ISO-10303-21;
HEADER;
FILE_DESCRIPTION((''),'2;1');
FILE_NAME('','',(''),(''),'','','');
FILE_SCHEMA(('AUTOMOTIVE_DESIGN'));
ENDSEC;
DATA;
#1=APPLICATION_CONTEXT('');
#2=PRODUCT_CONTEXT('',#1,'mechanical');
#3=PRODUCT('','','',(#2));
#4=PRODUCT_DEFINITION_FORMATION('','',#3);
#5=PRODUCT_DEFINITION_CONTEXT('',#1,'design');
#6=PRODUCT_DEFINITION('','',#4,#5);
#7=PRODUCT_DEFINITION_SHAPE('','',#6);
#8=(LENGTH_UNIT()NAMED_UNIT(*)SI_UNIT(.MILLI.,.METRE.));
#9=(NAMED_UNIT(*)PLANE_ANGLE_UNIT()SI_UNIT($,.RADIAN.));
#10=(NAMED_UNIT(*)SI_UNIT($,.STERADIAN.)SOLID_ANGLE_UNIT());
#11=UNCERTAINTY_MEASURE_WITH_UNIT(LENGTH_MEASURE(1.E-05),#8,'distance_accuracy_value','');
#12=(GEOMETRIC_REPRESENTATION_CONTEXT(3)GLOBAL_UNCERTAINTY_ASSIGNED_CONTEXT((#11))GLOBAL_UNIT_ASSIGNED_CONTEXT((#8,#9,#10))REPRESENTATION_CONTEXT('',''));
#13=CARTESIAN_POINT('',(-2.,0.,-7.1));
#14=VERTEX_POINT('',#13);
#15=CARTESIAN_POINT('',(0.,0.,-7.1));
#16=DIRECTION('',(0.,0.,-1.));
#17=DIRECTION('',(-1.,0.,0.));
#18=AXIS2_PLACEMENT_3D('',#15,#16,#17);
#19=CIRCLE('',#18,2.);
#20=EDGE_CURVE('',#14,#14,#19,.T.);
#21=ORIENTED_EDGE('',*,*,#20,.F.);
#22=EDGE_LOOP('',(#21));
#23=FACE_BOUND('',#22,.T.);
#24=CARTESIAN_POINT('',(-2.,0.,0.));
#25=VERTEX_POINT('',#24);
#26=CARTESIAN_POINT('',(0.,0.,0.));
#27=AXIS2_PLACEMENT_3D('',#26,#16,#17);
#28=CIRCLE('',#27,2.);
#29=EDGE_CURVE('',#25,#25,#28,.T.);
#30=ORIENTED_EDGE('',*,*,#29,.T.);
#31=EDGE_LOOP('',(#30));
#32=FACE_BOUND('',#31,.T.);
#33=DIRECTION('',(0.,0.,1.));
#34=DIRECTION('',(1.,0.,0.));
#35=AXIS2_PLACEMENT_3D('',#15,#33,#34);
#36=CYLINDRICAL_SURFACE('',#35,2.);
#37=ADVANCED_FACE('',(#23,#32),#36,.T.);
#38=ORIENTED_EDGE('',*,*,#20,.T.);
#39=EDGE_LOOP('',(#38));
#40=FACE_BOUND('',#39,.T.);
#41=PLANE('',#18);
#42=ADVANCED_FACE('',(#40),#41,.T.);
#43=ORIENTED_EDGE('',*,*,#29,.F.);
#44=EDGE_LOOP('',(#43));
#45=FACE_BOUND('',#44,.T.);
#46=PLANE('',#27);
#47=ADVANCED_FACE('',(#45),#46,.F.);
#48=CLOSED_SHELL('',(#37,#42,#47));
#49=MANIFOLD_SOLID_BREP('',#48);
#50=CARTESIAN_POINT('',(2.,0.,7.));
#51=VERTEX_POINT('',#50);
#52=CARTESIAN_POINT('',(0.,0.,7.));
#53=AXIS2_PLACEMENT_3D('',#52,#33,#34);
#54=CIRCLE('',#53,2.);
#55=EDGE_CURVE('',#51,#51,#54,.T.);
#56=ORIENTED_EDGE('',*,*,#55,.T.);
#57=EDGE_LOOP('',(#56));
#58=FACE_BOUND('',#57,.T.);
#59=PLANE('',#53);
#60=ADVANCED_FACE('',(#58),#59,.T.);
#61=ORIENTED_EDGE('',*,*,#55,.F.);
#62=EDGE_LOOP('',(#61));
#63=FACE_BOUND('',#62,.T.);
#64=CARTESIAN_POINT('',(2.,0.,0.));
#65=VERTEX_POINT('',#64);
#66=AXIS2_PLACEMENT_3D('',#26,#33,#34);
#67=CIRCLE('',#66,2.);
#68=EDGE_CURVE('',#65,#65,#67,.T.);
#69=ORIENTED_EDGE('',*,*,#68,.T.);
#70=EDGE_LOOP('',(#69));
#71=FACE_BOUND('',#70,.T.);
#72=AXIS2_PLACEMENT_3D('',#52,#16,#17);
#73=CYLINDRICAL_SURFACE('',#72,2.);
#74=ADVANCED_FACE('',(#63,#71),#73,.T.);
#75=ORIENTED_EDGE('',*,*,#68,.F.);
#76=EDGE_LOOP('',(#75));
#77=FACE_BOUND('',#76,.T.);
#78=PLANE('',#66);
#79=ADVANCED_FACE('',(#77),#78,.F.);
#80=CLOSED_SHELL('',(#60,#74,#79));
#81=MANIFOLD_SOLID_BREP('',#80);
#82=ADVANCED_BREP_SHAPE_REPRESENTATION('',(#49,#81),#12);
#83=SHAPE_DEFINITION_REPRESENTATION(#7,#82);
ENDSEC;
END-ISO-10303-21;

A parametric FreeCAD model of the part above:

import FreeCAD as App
import Part
import Sketcher

doc = App.newDocument("Part")
body = doc.addObject("PartDesign::Body", "Body")

# Sketch on XY plane
sketch1 = doc.addObject("Sketcher::SketchObject", "Sketch")
body.addObject(sketch1)
sketch1.AttachmentSupport = (doc.XY_Plane, [""])
sketch1.MapMode = "FlatFace"
sketch1.addGeometry(Part.Circle(App.Vector(0, 0, 0), App.Vector(0, 0, 1), 2), False)
sketch1.addConstraint(Sketcher.Constraint("Coincident", 0, 3, -1, 1))
sketch1.addConstraint(Sketcher.Constraint("Diameter", 0, 4.0))
pad1 = doc.addObject("PartDesign::Pad", "Pad")
body.addObject(pad1)
pad1.Profile = sketch1
pad1.Length = 7
body2 = doc.addObject("PartDesign::Body", "Body001")

# Sketch on XY plane
sketch2 = doc.addObject("Sketcher::SketchObject", "Sketch001")
body2.addObject(sketch2)
sketch2.AttachmentSupport = (doc.getObject("XY_Plane001"), [""])
sketch2.MapMode = "FlatFace"
sketch2.addGeometry(Part.Circle(App.Vector(0, 0, 0), App.Vector(0, 0, 1), 2), False)
sketch2.addConstraint(Sketcher.Constraint("Coincident", 0, 3, -1, 1))
sketch2.addConstraint(Sketcher.Constraint("Diameter", 0, 4.0))
pad2 = doc.addObject("PartDesign::Pad", "Pad001")
body2.addObject(pad2)
pad2.Profile = sketch2
pad2.Length = 7.1
pad2.Reversed = True

doc.recompute()
